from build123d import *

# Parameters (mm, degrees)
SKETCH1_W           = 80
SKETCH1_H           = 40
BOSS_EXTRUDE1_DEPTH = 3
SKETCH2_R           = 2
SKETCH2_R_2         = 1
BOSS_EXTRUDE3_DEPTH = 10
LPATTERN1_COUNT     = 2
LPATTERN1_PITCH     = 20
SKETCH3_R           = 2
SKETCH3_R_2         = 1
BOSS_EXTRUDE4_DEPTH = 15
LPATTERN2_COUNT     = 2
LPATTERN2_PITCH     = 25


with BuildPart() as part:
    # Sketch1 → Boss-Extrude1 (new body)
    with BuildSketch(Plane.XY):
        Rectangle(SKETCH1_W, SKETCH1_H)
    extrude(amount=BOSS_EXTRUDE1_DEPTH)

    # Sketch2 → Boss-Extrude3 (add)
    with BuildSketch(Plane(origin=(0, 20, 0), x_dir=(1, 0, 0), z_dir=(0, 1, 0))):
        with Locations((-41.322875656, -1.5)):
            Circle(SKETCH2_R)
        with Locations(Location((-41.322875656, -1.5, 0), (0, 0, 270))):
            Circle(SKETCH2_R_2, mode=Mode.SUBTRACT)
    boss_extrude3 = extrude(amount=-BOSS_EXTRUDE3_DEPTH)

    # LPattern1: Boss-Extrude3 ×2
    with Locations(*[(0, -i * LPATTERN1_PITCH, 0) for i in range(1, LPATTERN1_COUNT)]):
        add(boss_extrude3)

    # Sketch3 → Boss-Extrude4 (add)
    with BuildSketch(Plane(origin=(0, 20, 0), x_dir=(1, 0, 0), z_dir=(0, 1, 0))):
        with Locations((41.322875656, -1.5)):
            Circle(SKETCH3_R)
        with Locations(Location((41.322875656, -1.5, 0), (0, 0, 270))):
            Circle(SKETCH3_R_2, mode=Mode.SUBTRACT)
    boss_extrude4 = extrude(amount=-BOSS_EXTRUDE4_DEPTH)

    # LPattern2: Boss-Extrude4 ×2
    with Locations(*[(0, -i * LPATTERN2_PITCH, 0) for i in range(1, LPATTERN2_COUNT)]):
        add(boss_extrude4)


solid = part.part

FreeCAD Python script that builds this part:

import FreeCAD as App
import Part
import Sketcher
Q = App.Units.Quantity

doc = App.newDocument("Part")
body = doc.addObject("PartDesign::Body", "Body")

# Sketch on XY plane
sketch1 = doc.addObject("Sketcher::SketchObject", "Sketch")
body.addObject(sketch1)
sketch1.AttachmentSupport = (doc.XY_Plane, [""])
sketch1.MapMode = "FlatFace"
sketch1.addGeometry(Part.LineSegment(App.Vector(-40, 20, 0), App.Vector(-40, -20, 0)), False)
sketch1.addGeometry(Part.LineSegment(App.Vector(-40, -20, 0), App.Vector(40, -20, 0)), False)
sketch1.addGeometry(Part.LineSegment(App.Vector(40, -20, 0), App.Vector(40, 20, 0)), False)
sketch1.addGeometry(Part.LineSegment(App.Vector(40, 20, 0), App.Vector(-40, 20, 0)), False)
sketch1.addConstraint(Sketcher.Constraint("Coincident", 0, 2, 1, 1))
sketch1.addConstraint(Sketcher.Constraint("Coincident", 1, 2, 2, 1))
sketch1.addConstraint(Sketcher.Constraint("Coincident", 2, 2, 3, 1))
sketch1.addConstraint(Sketcher.Constraint("Coincident", 3, 2, 0, 1))
sketch1.addConstraint(Sketcher.Constraint("Vertical", 0))
sketch1.addConstraint(Sketcher.Constraint("Horizontal", 1))
sketch1.addConstraint(Sketcher.Constraint("Vertical", 2))
sketch1.addConstraint(Sketcher.Constraint("Horizontal", 3))
sketch1.addConstraint(Sketcher.Constraint("Symmetric", 0, 2, 2, 2, -1, 1))
sketch1.addConstraint(Sketcher.Constraint("DistanceX", 1, 1, 1, 2, Q("80 mm")))
sketch1.addConstraint(Sketcher.Constraint("DistanceY", 0, 2, 0, 1, Q("40 mm")))
pad1 = doc.addObject("PartDesign::Pad", "Pad")
body.addObject(pad1)
pad1.Profile = sketch1
pad1.Length = 3

# Sketch on XZ plane
sketch2 = doc.addObject("Sketcher::SketchObject", "Sketch001")
body.addObject(sketch2)
sketch2.AttachmentSupport = (doc.XZ_Plane, [""])
sketch2.MapMode = "FlatFace"
sketch2.AttachmentOffset = App.Placement(App.Vector(0, 0, -20), App.Rotation())
sketch2.addGeometry(Part.Circle(App.Vector(-41.322876, 1.5, 0), App.Vector(0, 0, 1), 2), False)
sketch2.addGeometry(Part.Circle(App.Vector(-41.322876, 1.5, 0), App.Vector(0, 0, 1), 1), False)
sketch2.addConstraint(Sketcher.Constraint("Coincident", 1, 3, 0, 3))
sketch2.addConstraint(Sketcher.Constraint("Diameter", 0, Q("4 mm")))
sketch2.addConstraint(Sketcher.Constraint("Diameter", 1, Q("2 mm")))
sketch2.addConstraint(Sketcher.Constraint("DistanceY", -1, 1, 0, 3, Q("1.5 mm")))
sketch2.addConstraint(Sketcher.Constraint("DistanceX", 0, 3, -1, 1, Q("41.322876 mm")))
pad2 = doc.addObject("PartDesign::Pad", "Pad001")
body.addObject(pad2)
pad2.Profile = sketch2
pad2.Length = 10
doc.recompute()

linearpattern = doc.addObject("PartDesign::LinearPattern", "LinearPattern")
body.addObject(linearpattern)
linearpattern.Originals = [pad2]
linearpattern.Direction = (doc.Y_Axis, [""])
linearpattern.Mode = "offset"
linearpattern.Offset = 20
linearpattern.Occurrences = 2
linearpattern.Reversed = True
body.Tip = linearpattern

# Sketch on XZ plane
sketch3 = doc.addObject("Sketcher::SketchObject", "Sketch002")
body.addObject(sketch3)
sketch3.AttachmentSupport = (doc.XZ_Plane, [""])
sketch3.MapMode = "FlatFace"
sketch3.AttachmentOffset = App.Placement(App.Vector(0, 0, -20), App.Rotation())
sketch3.addGeometry(Part.Circle(App.Vector(41.322876, 1.5, 0), App.Vector(0, 0, 1), 2), False)
sketch3.addGeometry(Part.Circle(App.Vector(41.322876, 1.5, 0), App.Vector(0, 0, 1), 1), False)
sketch3.addConstraint(Sketcher.Constraint("Coincident", 1, 3, 0, 3))
sketch3.addConstraint(Sketcher.Constraint("Diameter", 0, Q("4 mm")))
sketch3.addConstraint(Sketcher.Constraint("Diameter", 1, Q("2 mm")))
sketch3.addConstraint(Sketcher.Constraint("DistanceY", -1, 1, 0, 3, Q("1.5 mm")))
sketch3.addConstraint(Sketcher.Constraint("DistanceX", -1, 1, 0, 3, Q("41.322876 mm")))
pad3 = doc.addObject("PartDesign::Pad", "Pad002")
body.addObject(pad3)
pad3.Profile = sketch3
pad3.Length = 15
doc.recompute()

linearpattern2 = doc.addObject("PartDesign::LinearPattern", "LinearPattern001")
body.addObject(linearpattern2)
linearpattern2.Originals = [pad3]
linearpattern2.Direction = (doc.Y_Axis, [""])
linearpattern2.Mode = "offset"
linearpattern2.Offset = 25
linearpattern2.Occurrences = 2
linearpattern2.Reversed = True
body.Tip = linearpattern2

doc.recompute()
